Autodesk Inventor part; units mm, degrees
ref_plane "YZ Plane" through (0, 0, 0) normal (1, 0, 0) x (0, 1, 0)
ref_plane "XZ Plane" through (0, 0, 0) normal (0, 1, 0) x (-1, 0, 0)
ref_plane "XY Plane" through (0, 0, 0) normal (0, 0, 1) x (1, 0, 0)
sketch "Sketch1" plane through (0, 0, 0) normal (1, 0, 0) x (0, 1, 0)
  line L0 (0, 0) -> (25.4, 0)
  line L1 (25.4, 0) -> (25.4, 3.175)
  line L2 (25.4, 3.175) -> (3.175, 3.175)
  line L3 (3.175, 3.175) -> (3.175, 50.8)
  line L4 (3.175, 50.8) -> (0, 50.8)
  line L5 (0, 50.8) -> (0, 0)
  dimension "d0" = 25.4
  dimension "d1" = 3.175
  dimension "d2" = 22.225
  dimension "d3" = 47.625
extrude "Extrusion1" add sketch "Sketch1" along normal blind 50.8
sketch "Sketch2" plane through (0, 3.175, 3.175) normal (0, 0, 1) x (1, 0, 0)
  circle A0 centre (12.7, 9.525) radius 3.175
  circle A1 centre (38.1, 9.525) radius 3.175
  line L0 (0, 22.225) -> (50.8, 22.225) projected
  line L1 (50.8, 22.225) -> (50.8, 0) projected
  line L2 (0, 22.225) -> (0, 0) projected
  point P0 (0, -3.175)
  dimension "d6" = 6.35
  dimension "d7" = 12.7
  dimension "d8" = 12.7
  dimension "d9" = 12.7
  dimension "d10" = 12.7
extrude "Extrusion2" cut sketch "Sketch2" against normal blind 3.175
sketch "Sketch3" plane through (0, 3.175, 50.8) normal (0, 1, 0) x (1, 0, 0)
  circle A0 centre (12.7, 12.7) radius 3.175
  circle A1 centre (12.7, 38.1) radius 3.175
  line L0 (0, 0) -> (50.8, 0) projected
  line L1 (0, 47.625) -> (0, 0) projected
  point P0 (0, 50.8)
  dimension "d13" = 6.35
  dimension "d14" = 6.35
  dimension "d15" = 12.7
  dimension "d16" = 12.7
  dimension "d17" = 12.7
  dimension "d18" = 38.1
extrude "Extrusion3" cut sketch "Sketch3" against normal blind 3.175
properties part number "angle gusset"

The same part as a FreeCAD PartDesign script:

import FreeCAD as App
import Part
import Sketcher
from FreeCAD import Vector
Q = App.Units.Quantity

doc = App.newDocument("Part")
body = doc.addObject("PartDesign::Body", "Body")

sketch1 = body.newObject("Sketcher::SketchObject", "Sketch")
sketch1.AttachmentSupport = (doc.getObject("YZ_Plane"), [""])
sketch1.MapMode = "FlatFace"
sketch1.addGeometry([
    Part.LineSegment(Vector(0, 50.8, 0), Vector(0, 0, 0)),
    Part.LineSegment(Vector(0, 0, 0), Vector(25.4, 0, 0)),
    Part.LineSegment(Vector(25.4, 0, 0), Vector(25.4, 3.2, 0)),
    Part.LineSegment(Vector(25.4, 3.2, 0), Vector(3.2, 3.2, 0)),
    Part.LineSegment(Vector(3.2, 3.2, 0), Vector(3.2, 50.8, 0)),
    Part.LineSegment(Vector(3.2, 50.8, 0), Vector(0, 50.8, 0)),
], False)
sketch1.addConstraint([
    Sketcher.Constraint("Coincident", 0, 2, 1, 1),
    Sketcher.Constraint("Coincident", 1, 2, 2, 1),
    Sketcher.Constraint("Coincident", 2, 2, 3, 1),
    Sketcher.Constraint("Coincident", 3, 2, 4, 1),
    Sketcher.Constraint("Coincident", 4, 2, 5, 1),
    Sketcher.Constraint("Coincident", 5, 2, 0, 1),
    Sketcher.Constraint("Vertical", 0),
    Sketcher.Constraint("Horizontal", 1),
    Sketcher.Constraint("Vertical", 2),
    Sketcher.Constraint("Horizontal", 3),
    Sketcher.Constraint("Vertical", 4),
    Sketcher.Constraint("Horizontal", 5),
    Sketcher.Constraint("Coincident", 0, 2, -1, 1),
    Sketcher.Constraint("Equal", 5, 2),
    Sketcher.Constraint("DistanceX", 1, 1, 1, 2, Q("1 in")),
    Sketcher.Constraint("DistanceX", 3, 2, 3, 1, Q("0.875 in")),
    Sketcher.Constraint("DistanceY", 0, 2, 0, 1, Q("2 in")),
])
pad1 = body.newObject("PartDesign::Pad", "Pad")
pad1.Profile = sketch1
pad1.Length = Q("2 in")

sketch2 = body.newObject("Sketcher::SketchObject", "Sketch001")
sketch2.AttachmentSupport = (doc.getObject("XY_Plane"), [""])
sketch2.MapMode = "FlatFace"
sketch2.AttachmentOffset = App.Placement(Vector(0, 0, 0.125 * 25.4), App.Rotation())
sketch2.addGeometry([
    Part.Circle(Vector(12.7, 12.7, 0), Vector(0, 0, 1), 3.2),
    Part.Circle(Vector(38.1, 12.7, 0), Vector(0, 0, 1), 3.2),
], False)
sketch2.addConstraint([
    Sketcher.Constraint("Equal", 0, 1),
    Sketcher.Constraint("Horizontal", 0, 3, 1, 3),
    Sketcher.Constraint("Diameter", 0, Q("0.25 in")),
    Sketcher.Constraint("DistanceX", -1, 1, 0, 3, Q("0.5 in")),
    Sketcher.Constraint("DistanceY", -1, 1, 0, 3, Q("0.5 in")),
    Sketcher.Constraint("DistanceX", 0, 3, 1, 3, Q("1 in")),
])
pocket1 = body.newObject("PartDesign::Pocket", "Pocket")
pocket1.Profile = sketch2
pocket1.Length = Q("0.125 in")

sketch3 = body.newObject("Sketcher::SketchObject", "Sketch002")
sketch3.AttachmentSupport = (doc.getObject("XZ_Plane"), [""])
sketch3.MapMode = "FlatFace"
sketch3.AttachmentOffset = App.Placement(Vector(0, 0, -0.125 * 25.4), App.Rotation())
sketch3.addGeometry([
    Part.Circle(Vector(12.7, 38.1, 0), Vector(0, 0, 1), 3.2),
    Part.Circle(Vector(12.7, 12.7, 0), Vector(0, 0, 1), 3.2),
], False)
sketch3.addConstraint([
    Sketcher.Constraint("Equal", 0, 1),
    Sketcher.Constraint("Vertical", 0, 3, 1, 3),
    Sketcher.Constraint("Diameter", 0, Q("0.25 in")),
    Sketcher.Constraint("DistanceX", -1, 1, 0, 3, Q("0.5 in")),
    Sketcher.Constraint("DistanceY", -1, 1, 0, 3, Q("1.5 in")),
    Sketcher.Constraint("DistanceY", -1, 1, 1, 3, Q("0.5 in")),
])
pocket2 = body.newObject("PartDesign::Pocket", "Pocket001")
pocket2.Profile = sketch3
pocket2.Length = Q("0.125 in")
pocket2.Reversed = True

doc.recompute()
